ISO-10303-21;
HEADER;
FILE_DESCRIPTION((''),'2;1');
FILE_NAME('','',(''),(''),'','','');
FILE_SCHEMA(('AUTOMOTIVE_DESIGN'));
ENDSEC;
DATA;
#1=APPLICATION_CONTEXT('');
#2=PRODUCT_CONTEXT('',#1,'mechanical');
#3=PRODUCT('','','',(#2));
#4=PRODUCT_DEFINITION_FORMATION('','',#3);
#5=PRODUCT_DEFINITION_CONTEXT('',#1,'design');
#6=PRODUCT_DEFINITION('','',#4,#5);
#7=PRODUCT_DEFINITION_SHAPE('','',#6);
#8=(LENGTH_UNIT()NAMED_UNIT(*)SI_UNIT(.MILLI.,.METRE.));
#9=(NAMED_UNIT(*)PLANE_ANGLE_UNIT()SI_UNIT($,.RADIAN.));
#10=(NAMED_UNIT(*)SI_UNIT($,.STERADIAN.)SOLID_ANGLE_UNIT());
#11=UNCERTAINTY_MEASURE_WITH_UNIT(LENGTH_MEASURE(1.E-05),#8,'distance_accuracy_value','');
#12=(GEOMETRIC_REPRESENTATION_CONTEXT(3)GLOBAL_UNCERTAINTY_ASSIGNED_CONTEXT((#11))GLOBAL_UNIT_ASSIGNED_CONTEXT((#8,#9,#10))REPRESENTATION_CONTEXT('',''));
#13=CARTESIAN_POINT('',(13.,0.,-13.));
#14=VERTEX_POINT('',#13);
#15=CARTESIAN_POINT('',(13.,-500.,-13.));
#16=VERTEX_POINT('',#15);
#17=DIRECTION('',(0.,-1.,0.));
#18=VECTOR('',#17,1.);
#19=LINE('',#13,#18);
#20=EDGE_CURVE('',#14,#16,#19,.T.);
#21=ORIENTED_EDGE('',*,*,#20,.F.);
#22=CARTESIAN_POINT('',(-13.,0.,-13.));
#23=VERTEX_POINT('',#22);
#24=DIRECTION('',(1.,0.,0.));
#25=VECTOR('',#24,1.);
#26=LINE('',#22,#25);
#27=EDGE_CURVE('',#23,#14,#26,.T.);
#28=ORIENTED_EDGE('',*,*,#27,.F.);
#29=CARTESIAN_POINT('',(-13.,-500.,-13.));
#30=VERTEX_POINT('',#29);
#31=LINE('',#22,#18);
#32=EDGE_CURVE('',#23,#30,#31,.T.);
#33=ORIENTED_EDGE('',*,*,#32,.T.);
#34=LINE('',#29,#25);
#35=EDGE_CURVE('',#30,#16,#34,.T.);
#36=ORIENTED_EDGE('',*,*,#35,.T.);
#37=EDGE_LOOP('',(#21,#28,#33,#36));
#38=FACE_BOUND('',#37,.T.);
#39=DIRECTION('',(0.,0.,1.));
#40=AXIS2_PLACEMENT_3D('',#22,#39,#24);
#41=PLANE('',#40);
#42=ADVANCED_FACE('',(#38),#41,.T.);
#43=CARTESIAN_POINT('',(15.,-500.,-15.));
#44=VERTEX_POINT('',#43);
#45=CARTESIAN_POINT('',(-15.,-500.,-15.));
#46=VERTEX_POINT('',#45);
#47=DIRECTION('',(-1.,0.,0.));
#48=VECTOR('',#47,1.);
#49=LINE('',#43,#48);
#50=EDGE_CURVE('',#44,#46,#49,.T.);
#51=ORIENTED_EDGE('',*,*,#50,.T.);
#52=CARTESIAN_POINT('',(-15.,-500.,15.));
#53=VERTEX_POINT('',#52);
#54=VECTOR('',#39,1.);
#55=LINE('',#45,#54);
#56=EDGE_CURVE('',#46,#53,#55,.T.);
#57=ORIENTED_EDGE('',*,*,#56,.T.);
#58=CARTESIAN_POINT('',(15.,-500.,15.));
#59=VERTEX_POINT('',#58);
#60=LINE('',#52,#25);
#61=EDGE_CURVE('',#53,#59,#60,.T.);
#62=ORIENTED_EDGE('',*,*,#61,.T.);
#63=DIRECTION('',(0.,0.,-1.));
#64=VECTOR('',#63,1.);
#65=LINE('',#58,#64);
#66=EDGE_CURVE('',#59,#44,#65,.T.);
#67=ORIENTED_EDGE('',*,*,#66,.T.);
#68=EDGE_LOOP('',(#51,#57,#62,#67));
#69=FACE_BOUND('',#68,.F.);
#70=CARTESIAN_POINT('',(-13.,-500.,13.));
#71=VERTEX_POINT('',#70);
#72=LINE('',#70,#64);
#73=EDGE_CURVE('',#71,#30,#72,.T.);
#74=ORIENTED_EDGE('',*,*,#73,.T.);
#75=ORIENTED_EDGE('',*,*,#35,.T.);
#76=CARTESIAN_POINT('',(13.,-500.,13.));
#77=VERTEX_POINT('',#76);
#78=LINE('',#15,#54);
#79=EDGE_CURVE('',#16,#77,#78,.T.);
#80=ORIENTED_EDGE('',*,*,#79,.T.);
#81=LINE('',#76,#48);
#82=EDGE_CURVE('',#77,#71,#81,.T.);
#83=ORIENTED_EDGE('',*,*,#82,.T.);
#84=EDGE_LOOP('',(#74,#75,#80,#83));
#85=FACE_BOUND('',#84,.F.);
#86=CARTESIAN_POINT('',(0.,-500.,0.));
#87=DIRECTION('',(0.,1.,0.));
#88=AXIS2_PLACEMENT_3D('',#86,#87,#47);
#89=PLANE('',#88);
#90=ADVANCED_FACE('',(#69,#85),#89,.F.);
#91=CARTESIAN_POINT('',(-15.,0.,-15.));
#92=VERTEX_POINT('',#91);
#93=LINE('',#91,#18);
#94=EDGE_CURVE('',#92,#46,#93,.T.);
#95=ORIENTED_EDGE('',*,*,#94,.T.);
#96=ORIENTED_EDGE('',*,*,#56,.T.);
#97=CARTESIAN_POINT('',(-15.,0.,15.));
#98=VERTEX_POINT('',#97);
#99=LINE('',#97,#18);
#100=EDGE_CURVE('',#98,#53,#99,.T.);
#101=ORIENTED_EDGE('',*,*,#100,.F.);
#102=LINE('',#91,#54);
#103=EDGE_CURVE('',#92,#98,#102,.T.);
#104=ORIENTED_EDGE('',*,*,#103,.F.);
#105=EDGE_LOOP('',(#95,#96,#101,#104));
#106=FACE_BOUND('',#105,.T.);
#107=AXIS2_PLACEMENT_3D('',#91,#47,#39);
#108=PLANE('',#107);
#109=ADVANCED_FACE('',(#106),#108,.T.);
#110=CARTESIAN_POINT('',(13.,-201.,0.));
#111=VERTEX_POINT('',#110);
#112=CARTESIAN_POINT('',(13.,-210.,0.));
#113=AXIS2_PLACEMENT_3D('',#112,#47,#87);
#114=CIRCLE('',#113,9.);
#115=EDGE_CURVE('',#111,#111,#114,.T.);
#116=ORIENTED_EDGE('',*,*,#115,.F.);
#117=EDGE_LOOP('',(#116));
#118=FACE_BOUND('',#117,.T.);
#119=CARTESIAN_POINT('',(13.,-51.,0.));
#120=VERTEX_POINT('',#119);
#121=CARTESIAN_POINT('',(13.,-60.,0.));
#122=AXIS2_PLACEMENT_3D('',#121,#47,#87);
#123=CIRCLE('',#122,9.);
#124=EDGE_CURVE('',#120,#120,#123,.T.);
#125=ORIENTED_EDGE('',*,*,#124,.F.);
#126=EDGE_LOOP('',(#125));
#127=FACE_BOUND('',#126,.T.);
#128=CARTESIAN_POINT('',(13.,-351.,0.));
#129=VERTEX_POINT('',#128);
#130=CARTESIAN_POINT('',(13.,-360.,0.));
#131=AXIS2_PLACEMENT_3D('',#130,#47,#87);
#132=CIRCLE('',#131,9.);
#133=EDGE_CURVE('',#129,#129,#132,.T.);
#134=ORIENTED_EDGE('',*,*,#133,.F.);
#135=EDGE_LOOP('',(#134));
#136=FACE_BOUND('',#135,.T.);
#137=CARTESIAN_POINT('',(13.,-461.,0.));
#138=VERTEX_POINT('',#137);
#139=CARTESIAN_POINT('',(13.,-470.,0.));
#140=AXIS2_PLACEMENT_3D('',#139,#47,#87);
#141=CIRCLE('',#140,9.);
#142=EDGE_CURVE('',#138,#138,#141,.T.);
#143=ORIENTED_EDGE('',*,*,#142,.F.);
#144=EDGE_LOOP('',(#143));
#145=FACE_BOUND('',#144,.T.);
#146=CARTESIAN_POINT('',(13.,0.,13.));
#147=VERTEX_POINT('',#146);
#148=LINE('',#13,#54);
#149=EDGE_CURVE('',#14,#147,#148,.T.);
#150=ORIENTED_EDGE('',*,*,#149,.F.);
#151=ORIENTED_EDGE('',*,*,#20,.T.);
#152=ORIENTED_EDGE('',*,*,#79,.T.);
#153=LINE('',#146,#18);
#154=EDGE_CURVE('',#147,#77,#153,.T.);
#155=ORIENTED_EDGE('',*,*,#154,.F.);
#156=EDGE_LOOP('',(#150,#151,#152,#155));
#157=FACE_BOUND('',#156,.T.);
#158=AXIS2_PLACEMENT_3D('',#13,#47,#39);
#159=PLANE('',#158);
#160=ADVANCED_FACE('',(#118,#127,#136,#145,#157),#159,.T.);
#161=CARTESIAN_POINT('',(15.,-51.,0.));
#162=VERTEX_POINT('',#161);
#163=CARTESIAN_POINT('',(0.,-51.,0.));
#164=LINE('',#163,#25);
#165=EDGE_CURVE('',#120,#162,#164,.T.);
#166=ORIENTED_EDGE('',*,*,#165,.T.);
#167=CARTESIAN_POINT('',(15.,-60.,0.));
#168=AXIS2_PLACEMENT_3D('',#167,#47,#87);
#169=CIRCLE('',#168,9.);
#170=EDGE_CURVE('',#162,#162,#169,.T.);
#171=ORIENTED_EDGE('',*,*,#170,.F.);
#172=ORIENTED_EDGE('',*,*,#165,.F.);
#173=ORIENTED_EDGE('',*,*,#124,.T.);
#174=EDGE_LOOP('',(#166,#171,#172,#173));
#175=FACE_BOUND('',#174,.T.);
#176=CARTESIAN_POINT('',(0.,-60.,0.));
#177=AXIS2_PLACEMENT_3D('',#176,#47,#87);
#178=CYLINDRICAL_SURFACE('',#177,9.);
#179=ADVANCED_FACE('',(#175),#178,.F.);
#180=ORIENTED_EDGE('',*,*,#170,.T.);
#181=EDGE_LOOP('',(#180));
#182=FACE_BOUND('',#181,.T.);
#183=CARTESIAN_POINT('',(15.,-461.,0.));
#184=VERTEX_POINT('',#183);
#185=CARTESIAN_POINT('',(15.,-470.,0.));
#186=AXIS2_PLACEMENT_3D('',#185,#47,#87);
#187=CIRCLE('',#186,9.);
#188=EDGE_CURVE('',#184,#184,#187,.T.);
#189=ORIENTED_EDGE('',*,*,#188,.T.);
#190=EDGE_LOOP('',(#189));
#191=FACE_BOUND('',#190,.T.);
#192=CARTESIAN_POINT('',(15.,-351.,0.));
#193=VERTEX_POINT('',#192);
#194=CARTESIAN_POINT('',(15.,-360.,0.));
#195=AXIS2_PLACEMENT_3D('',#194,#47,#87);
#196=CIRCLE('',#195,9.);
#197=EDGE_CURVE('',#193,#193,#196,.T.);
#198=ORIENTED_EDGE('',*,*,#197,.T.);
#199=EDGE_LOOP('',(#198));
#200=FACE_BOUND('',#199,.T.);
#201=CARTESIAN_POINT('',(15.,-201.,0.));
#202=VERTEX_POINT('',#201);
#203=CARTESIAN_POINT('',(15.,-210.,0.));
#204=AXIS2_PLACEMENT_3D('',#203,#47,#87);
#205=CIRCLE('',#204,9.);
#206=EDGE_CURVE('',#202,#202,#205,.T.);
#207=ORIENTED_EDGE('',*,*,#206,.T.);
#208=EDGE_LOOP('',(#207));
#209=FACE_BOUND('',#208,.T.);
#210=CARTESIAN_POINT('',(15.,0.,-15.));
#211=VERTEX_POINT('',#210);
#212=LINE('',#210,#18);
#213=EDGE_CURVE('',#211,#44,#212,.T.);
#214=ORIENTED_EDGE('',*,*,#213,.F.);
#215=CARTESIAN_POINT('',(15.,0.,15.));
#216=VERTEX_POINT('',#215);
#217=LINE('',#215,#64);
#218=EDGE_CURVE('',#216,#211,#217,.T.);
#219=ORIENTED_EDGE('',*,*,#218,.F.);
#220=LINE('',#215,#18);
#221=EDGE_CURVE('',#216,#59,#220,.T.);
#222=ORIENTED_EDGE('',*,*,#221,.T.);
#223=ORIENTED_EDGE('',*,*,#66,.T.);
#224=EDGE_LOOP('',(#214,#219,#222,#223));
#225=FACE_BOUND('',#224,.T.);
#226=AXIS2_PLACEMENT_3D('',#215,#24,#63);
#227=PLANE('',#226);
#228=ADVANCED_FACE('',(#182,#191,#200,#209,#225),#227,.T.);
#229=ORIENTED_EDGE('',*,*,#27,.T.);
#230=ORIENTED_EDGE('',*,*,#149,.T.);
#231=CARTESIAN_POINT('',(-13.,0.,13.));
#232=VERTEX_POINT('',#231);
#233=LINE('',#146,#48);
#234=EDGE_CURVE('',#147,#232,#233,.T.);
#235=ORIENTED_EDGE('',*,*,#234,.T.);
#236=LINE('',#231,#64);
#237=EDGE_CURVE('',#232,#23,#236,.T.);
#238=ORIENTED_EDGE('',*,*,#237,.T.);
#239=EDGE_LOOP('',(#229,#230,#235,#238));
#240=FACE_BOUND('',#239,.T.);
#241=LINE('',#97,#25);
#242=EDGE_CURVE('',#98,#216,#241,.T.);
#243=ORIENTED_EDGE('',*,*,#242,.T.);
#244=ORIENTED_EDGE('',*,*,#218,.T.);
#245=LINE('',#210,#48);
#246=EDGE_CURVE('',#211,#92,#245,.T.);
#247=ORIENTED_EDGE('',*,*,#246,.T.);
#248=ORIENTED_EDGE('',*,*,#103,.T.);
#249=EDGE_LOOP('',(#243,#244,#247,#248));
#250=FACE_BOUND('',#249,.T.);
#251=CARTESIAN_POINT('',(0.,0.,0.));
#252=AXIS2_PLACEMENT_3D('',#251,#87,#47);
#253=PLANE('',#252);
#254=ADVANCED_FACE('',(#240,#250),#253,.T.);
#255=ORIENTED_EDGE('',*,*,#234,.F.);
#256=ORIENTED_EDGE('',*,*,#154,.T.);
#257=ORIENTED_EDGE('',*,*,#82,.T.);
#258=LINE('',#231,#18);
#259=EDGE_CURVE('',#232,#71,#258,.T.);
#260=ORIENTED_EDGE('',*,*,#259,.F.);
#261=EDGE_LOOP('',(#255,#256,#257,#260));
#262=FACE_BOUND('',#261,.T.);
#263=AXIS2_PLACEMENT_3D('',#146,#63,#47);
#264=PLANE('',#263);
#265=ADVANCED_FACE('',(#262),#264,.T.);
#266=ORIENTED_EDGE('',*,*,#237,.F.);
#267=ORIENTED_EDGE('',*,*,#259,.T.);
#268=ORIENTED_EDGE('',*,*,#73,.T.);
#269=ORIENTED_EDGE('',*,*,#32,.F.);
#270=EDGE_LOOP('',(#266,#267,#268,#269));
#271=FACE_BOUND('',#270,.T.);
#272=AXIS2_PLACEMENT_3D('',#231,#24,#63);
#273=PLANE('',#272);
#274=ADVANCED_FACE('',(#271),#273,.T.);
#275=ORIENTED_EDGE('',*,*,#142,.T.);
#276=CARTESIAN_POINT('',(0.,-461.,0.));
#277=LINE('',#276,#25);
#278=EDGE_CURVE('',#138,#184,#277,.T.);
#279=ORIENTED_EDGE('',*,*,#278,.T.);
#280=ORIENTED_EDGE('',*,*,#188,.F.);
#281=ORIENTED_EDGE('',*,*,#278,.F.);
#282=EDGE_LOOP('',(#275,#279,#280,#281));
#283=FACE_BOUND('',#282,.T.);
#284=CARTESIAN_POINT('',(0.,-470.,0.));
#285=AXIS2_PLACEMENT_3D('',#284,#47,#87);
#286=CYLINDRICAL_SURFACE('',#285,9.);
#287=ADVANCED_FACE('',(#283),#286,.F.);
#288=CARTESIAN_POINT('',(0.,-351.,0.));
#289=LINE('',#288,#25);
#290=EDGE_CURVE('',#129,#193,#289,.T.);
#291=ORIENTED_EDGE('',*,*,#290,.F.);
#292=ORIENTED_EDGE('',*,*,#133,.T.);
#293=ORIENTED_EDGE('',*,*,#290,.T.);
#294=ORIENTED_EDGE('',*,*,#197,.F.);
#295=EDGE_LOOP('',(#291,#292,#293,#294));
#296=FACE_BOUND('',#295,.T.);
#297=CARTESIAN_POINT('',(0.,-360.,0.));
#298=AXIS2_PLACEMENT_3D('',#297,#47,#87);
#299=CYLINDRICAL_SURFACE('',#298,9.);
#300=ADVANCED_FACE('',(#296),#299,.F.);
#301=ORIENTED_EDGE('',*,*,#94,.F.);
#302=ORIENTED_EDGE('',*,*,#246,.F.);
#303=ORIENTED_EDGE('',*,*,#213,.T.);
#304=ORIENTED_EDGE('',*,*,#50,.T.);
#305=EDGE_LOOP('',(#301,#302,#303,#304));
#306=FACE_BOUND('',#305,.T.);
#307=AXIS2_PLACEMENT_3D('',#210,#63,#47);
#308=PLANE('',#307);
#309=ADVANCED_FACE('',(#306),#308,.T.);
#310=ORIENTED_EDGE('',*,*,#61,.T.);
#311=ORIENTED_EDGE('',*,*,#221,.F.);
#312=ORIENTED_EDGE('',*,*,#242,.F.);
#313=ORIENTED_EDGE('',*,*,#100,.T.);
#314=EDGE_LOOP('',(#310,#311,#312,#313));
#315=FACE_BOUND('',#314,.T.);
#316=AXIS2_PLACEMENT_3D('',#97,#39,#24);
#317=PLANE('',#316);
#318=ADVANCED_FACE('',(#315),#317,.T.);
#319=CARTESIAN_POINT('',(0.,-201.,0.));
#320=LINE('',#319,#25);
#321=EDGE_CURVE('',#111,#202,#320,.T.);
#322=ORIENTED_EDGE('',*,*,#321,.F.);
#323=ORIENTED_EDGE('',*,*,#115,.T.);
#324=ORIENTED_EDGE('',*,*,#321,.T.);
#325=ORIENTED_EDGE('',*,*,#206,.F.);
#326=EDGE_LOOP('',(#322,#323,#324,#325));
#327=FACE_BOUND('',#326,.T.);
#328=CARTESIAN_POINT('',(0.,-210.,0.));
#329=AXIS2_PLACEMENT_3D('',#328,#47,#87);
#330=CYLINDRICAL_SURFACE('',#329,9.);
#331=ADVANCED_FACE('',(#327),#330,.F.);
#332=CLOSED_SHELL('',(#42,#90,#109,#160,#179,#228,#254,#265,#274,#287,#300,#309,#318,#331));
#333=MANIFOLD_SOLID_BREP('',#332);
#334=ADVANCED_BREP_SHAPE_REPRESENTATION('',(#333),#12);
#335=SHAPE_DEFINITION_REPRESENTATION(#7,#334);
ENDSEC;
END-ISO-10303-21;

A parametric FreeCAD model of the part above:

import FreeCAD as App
import Part
import Sketcher
Q = App.Units.Quantity


def add_polygon(sketch, points):
    """Adds a closed chain of lines whose ends are joined by coincident constraints."""
    first, n = sketch.GeometryCount, len(points)
    for a, b in zip(points, points[1:] + points[:1]):
        sketch.addGeometry(Part.LineSegment(App.Vector(*a, 0), App.Vector(*b, 0)), False)
    for i in range(n):
        sketch.addConstraint(Sketcher.Constraint("Coincident", first + i, 2, first + (i + 1) % n, 1))

doc = App.newDocument("Part")
params = doc.addObject("Spreadsheet::Sheet", "Params")
for row, (alias, value) in enumerate([
    ("sketch1_width", "30 mm"),
    ("pad1_length", "500 mm"),
    ("sketch2_diameter", "18 mm"),
], start=1):
    params.set(f"A{row}", alias)
    params.set(f"B{row}", "=" + value)
    params.setAlias(f"B{row}", alias)

body = doc.addObject("PartDesign::Body", "Body")

# Sketch on XZ plane
sketch1 = body.newObject("Sketcher::SketchObject", "Sketch")
sketch1.AttachmentSupport = (doc.getObject("XZ_Plane"), [""])
sketch1.MapMode = "FlatFace"
add_polygon(sketch1, [(-15, -15), (-15, 15), (15, 15), (15, -15)])  # lines 0-3
add_polygon(sketch1, [(13, -13), (13, 13), (-13, 13), (-13, -13)])  # lines 4-7
sketch1.addConstraint([
    Sketcher.Constraint("Vertical", 0),
    Sketcher.Constraint("Horizontal", 1),
    Sketcher.Constraint("Vertical", 2),
    Sketcher.Constraint("Horizontal", 3),
    Sketcher.Constraint("Vertical", 4),
    Sketcher.Constraint("Horizontal", 5),
    Sketcher.Constraint("Vertical", 6),
    Sketcher.Constraint("Horizontal", 7),
    Sketcher.Constraint("Symmetric", 0, 2, 2, 2, -1, 1),
    Sketcher.Constraint("Symmetric", 4, 2, 6, 2, -1, 1),
    Sketcher.Constraint("Equal", 3, 0),
    Sketcher.Constraint("Equal", 7, 4),
    Sketcher.Constraint("DistanceX", 1, 1, 1, 2, Q("30 mm")),
    Sketcher.Constraint("DistanceX", 4, 2, 1, 2, Q("2 mm")),
])
sketch1.setExpression("Constraints[20]", "Params.sketch1_width")
pad1 = body.newObject("PartDesign::Pad", "Pad")
pad1.Profile = sketch1
pad1.setExpression("Length", "Params.pad1_length")

# Sketch on YZ plane
sketch2 = body.newObject("Sketcher::SketchObject", "Sketch001")
sketch2.AttachmentSupport = (doc.getObject("YZ_Plane"), [""])
sketch2.MapMode = "FlatFace"
sketch2.addGeometry([
    Part.Circle(App.Vector(-60, 0, 0), App.Vector(0, 0, 1), 9),
    Part.Circle(App.Vector(-210, 0, 0), App.Vector(0, 0, 1), 9),
    Part.Circle(App.Vector(-360, 0, 0), App.Vector(0, 0, 1), 9),
    Part.Circle(App.Vector(-470, 0, 0), App.Vector(0, 0, 1), 9),
], False)
sketch2.addConstraint([
    Sketcher.Constraint("Equal", 0, 1),
    Sketcher.Constraint("Equal", 1, 2),
    Sketcher.Constraint("Equal", 2, 3),
    Sketcher.Constraint("PointOnObject", 0, 3, -1),
    Sketcher.Constraint("PointOnObject", 1, 3, -1),
    Sketcher.Constraint("PointOnObject", 2, 3, -1),
    Sketcher.Constraint("PointOnObject", 3, 3, -1),
    Sketcher.Constraint("Diameter", 0, Q("18 mm")),
    Sketcher.Constraint("DistanceX", 0, 3, -1, 1, Q("60 mm")),
    Sketcher.Constraint("DistanceX", 1, 3, -1, 1, Q("210 mm")),
    Sketcher.Constraint("DistanceX", 2, 3, -1, 1, Q("360 mm")),
    Sketcher.Constraint("DistanceX", 3, 3, -1, 1, Q("470 mm")),
])
sketch2.setExpression("Constraints[7]", "Params.sketch2_diameter")
pocket1 = body.newObject("PartDesign::Pocket", "Pocket")
pocket1.Profile = sketch2
pocket1.Type = "ThroughAll"
pocket1.Reversed = True

doc.recompute()
